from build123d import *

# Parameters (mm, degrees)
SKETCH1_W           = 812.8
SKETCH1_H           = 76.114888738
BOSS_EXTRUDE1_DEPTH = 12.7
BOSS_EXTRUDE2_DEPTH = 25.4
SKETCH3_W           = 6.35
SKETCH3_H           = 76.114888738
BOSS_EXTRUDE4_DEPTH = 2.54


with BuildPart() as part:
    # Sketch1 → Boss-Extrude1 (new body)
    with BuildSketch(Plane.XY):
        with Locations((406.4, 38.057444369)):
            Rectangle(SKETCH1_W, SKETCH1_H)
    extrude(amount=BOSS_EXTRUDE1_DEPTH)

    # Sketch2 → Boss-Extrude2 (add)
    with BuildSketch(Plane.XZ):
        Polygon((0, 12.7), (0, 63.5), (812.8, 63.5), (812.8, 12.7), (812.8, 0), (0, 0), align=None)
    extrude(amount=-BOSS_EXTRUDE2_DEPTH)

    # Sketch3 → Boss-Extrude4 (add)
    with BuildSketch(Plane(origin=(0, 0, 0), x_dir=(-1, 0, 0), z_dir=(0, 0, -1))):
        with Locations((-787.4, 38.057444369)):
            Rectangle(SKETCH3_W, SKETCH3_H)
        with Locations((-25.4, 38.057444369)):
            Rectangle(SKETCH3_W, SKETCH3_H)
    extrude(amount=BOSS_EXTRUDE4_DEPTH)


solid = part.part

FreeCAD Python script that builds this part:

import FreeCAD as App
import Part
import Sketcher

V = App.Vector
Q = App.Units.Quantity

doc = App.newDocument("Part")
params = doc.addObject("Spreadsheet::Sheet", "Params")
for row, (alias, value) in enumerate([
    ("sketch1_width", "32 in"),
    ("pad1_length", "0.5 in"),
    ("sketch2_width", "32 in"),
    ("sketch2_height", "2.5 in"),
    ("pad2_length", "1 in"),
    ("sketch3_width", "0.25 in"),
    ("pad3_length", "0.1 in"),
], start=1):
    params.set(f"A{row}", alias)
    params.set(f"B{row}", "=" + value)
    params.setAlias(f"B{row}", alias)

body = doc.addObject("PartDesign::Body", "Body")

sketch1 = body.newObject("Sketcher::SketchObject", "Sketch")
sketch1.AttachmentSupport = (doc.getObject("XY_Plane"), [""])
sketch1.MapMode = "FlatFace"
sketch1.addGeometry([
    Part.LineSegment(V(0, 76.114889, 0), V(0, 0, 0)),
    Part.LineSegment(V(0, 0, 0), V(812.8, 0, 0)),
    Part.LineSegment(V(812.8, 0, 0), V(812.8, 76.114889, 0)),
    Part.LineSegment(V(812.8, 76.114889, 0), V(0, 76.114889, 0)),
], False)
sketch1.addConstraint([
    Sketcher.Constraint("Coincident", 0, 2, 1, 1),
    Sketcher.Constraint("Coincident", 1, 2, 2, 1),
    Sketcher.Constraint("Coincident", 2, 2, 3, 1),
    Sketcher.Constraint("Coincident", 3, 2, 0, 1),
    Sketcher.Constraint("Vertical", 0),
    Sketcher.Constraint("Horizontal", 1),
    Sketcher.Constraint("Vertical", 2),
    Sketcher.Constraint("Horizontal", 3),
    Sketcher.Constraint("Coincident", 0, 2, -1, 1),
    Sketcher.Constraint("DistanceX", 1, 1, 1, 2, Q("32 in")),
    Sketcher.Constraint("DistanceY", 0, 2, 0, 1, 76.114889),
])
sketch1.setExpression("Constraints[9]", "Params.sketch1_width")
pad1 = body.newObject("PartDesign::Pad", "Pad")
pad1.Profile = sketch1
pad1.setExpression("Length", "Params.pad1_length")

sketch2 = body.newObject("Sketcher::SketchObject", "Sketch001")
sketch2.AttachmentSupport = (doc.getObject("XZ_Plane"), [""])
sketch2.MapMode = "FlatFace"
sketch2.addGeometry([
    Part.LineSegment(V(0, 63.5, 0), V(0, 0, 0)),
    Part.LineSegment(V(0, 0, 0), V(812.8, 0, 0)),
    Part.LineSegment(V(812.8, 0, 0), V(812.8, 63.5, 0)),
    Part.LineSegment(V(812.8, 63.5, 0), V(0, 63.5, 0)),
], False)
sketch2.addConstraint([
    Sketcher.Constraint("Coincident", 0, 2, 1, 1),
    Sketcher.Constraint("Coincident", 1, 2, 2, 1),
    Sketcher.Constraint("Coincident", 2, 2, 3, 1),
    Sketcher.Constraint("Coincident", 3, 2, 0, 1),
    Sketcher.Constraint("Vertical", 0),
    Sketcher.Constraint("Horizontal", 1),
    Sketcher.Constraint("Vertical", 2),
    Sketcher.Constraint("Horizontal", 3),
    Sketcher.Constraint("Coincident", 0, 2, -1, 1),
    Sketcher.Constraint("DistanceX", 1, 1, 1, 2, Q("32 in")),
    Sketcher.Constraint("DistanceY", 0, 2, 0, 1, Q("2.5 in")),
])
sketch2.setExpression("Constraints[9]", "Params.sketch2_width")
sketch2.setExpression("Constraints[10]", "Params.sketch2_height")
pad2 = body.newObject("PartDesign::Pad", "Pad001")
pad2.Profile = sketch2
pad2.setExpression("Length", "Params.pad2_length")
pad2.Reversed = True

sketch3 = body.newObject("Sketcher::SketchObject", "Sketch002")
sketch3.AttachmentSupport = (doc.getObject("XY_Plane"), [""])
sketch3.MapMode = "FlatFace"
sketch3.addGeometry([
    Part.LineSegment(V(790.575, 76.114889, 0), V(790.575, 0, 0)),
    Part.LineSegment(V(790.575, 0, 0), V(784.225, 0, 0)),
    Part.LineSegment(V(784.225, 0, 0), V(784.225, 76.114889, 0)),
    Part.LineSegment(V(784.225, 76.114889, 0), V(790.575, 76.114889, 0)),
    Part.LineSegment(V(28.575, 76.114889, 0), V(28.575, 0, 0)),
    Part.LineSegment(V(28.575, 0, 0), V(22.225, 0, 0)),
    Part.LineSegment(V(22.225, 0, 0), V(22.225, 76.114889, 0)),
    Part.LineSegment(V(22.225, 76.114889, 0), V(28.575, 76.114889, 0)),
], False)
sketch3.addConstraint([
    Sketcher.Constraint("Coincident", 0, 2, 1, 1),
    Sketcher.Constraint("Coincident", 1, 2, 2, 1),
    Sketcher.Constraint("Coincident", 2, 2, 3, 1),
    Sketcher.Constraint("Coincident", 3, 2, 0, 1),
    Sketcher.Constraint("Coincident", 4, 2, 5, 1),
    Sketcher.Constraint("Coincident", 5, 2, 6, 1),
    Sketcher.Constraint("Coincident", 6, 2, 7, 1),
    Sketcher.Constraint("Coincident", 7, 2, 4, 1),
    Sketcher.Constraint("Vertical", 0),
    Sketcher.Constraint("Horizontal", 1),
    Sketcher.Constraint("Vertical", 2),
    Sketcher.Constraint("Horizontal", 3),
    Sketcher.Constraint("Vertical", 4),
    Sketcher.Constraint("Horizontal", 5),
    Sketcher.Constraint("Vertical", 6),
    Sketcher.Constraint("Horizontal", 7),
    Sketcher.Constraint("PointOnObject", 0, 2, -1),
    Sketcher.Constraint("PointOnObject", 4, 2, -1),
    Sketcher.Constraint("Horizontal", 3, 2, 6, 2),
    Sketcher.Constraint("Equal", 3, 5),
    Sketcher.Constraint("DistanceX", 4, 2, 0, 2, Q("30 in")),
    Sketcher.Constraint("DistanceX", 1, 2, 1, 1, Q("0.25 in")),
    Sketcher.Constraint("DistanceX", -1, 1, 0, 2, Q("31.125 in")),
    Sketcher.Constraint("DistanceY", 0, 2, 0, 1, 76.114889),
])
sketch3.setExpression("Constraints[21]", "Params.sketch3_width")
pad3 = body.newObject("PartDesign::Pad", "Pad002")
pad3.Profile = sketch3
pad3.setExpression("Length", "Params.pad3_length")
pad3.Reversed = True

doc.recompute()
